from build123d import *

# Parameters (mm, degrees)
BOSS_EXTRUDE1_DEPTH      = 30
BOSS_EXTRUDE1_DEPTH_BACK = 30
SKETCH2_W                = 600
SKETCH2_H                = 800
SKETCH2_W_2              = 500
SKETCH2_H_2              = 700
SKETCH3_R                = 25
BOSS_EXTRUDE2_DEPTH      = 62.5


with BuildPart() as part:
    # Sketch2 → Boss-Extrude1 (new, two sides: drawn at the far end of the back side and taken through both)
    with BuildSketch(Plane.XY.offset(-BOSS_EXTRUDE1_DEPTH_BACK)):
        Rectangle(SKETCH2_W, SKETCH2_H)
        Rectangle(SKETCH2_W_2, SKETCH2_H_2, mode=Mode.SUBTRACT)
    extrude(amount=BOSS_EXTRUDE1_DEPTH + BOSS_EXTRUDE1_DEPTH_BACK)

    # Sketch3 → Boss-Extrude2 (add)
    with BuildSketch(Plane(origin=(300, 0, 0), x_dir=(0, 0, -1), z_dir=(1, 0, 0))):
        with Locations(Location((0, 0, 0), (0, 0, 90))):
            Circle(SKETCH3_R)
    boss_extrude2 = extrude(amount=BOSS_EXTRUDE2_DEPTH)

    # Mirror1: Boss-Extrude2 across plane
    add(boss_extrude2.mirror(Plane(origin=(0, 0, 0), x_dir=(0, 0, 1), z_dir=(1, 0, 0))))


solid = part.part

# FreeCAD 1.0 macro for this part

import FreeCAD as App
import Part
import Sketcher
Q = App.Units.Quantity


def add_polygon(sketch, points):
    """Adds a closed chain of lines whose ends are joined by coincident constraints."""
    first, n = sketch.GeometryCount, len(points)
    for a, b in zip(points, points[1:] + points[:1]):
        sketch.addGeometry(Part.LineSegment(App.Vector(*a, 0), App.Vector(*b, 0)), False)
    for i in range(n):
        sketch.addConstraint(Sketcher.Constraint("Coincident", first + i, 2, first + (i + 1) % n, 1))

doc = App.newDocument("Part")
body = doc.addObject("PartDesign::Body", "Body")

# Sketch on XY plane
sketch1 = doc.addObject("Sketcher::SketchObject", "Sketch")
body.addObject(sketch1)
sketch1.AttachmentSupport = (doc.XY_Plane, [""])
sketch1.MapMode = "FlatFace"
add_polygon(sketch1, [(-300, 400), (-300, -400), (300, -400), (300, 400)])  # lines 0-3
add_polygon(sketch1, [(250, -350), (-250, -350), (-250, 350), (250, 350)])  # lines 4-7
sketch1.addConstraint(Sketcher.Constraint("Vertical", 0))
sketch1.addConstraint(Sketcher.Constraint("Horizontal", 1))
sketch1.addConstraint(Sketcher.Constraint("Vertical", 2))
sketch1.addConstraint(Sketcher.Constraint("Horizontal", 3))
sketch1.addConstraint(Sketcher.Constraint("Horizontal", 4))
sketch1.addConstraint(Sketcher.Constraint("Vertical", 5))
sketch1.addConstraint(Sketcher.Constraint("Horizontal", 6))
sketch1.addConstraint(Sketcher.Constraint("Vertical", 7))
sketch1.addConstraint(Sketcher.Constraint("Symmetric", 0, 2, 2, 2, -1, 1))
sketch1.addConstraint(Sketcher.Constraint("Symmetric", 4, 2, 6, 2, -1, 1))
sketch1.addConstraint(Sketcher.Constraint("DistanceX", 1, 1, 1, 2, Q("600 mm")))
sketch1.addConstraint(Sketcher.Constraint("DistanceX", 4, 2, 4, 1, Q("500 mm")))
sketch1.addConstraint(Sketcher.Constraint("DistanceY", 0, 2, 0, 1, Q("800 mm")))
sketch1.addConstraint(Sketcher.Constraint("DistanceY", 5, 1, 5, 2, Q("700 mm")))
pad1 = doc.addObject("PartDesign::Pad", "Pad")
body.addObject(pad1)
pad1.Profile = sketch1
pad1.Type = "TwoLengths"
pad1.Length = 30
pad1.Length2 = 30

# Sketch on YZ plane
sketch2 = doc.addObject("Sketcher::SketchObject", "Sketch001")
body.addObject(sketch2)
sketch2.AttachmentSupport = (doc.YZ_Plane, [""])
sketch2.MapMode = "FlatFace"
sketch2.AttachmentOffset = App.Placement(App.Vector(0, 0, 300), App.Rotation())
sketch2.addGeometry(Part.Circle(App.Vector(0, 0, 0), App.Vector(0, 0, 1), 25), False)
sketch2.addConstraint(Sketcher.Constraint("Coincident", 0, 3, -1, 1))
sketch2.addConstraint(Sketcher.Constraint("Diameter", 0, Q("50 mm")))
pad2 = doc.addObject("PartDesign::Pad", "Pad001")
body.addObject(pad2)
pad2.Profile = sketch2
pad2.Length = 62.5
doc.recompute()

mirrored = doc.addObject("PartDesign::Mirrored", "Mirrored")
body.addObject(mirrored)
mirrored.Originals = [pad2]
mirrored.MirrorPlane = (doc.YZ_Plane, [""])
body.Tip = mirrored

doc.recompute()
